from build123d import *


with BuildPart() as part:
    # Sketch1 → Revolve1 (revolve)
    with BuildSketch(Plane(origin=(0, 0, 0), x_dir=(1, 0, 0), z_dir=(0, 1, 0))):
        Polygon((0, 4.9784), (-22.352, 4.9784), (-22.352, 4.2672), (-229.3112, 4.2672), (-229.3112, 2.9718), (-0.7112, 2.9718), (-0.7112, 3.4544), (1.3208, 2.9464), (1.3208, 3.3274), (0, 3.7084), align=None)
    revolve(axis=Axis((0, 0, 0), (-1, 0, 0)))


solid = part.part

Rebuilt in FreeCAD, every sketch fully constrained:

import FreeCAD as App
import Part
import Sketcher
Q = App.Units.Quantity


def add_polygon(sketch, points):
    """Adds a closed chain of lines whose ends are joined by coincident constraints."""
    first, n = sketch.GeometryCount, len(points)
    for a, b in zip(points, points[1:] + points[:1]):
        sketch.addGeometry(Part.LineSegment(App.Vector(*a, 0), App.Vector(*b, 0)), False)
    for i in range(n):
        sketch.addConstraint(Sketcher.Constraint("Coincident", first + i, 2, first + (i + 1) % n, 1))

doc = App.newDocument("Part")
body = doc.addObject("PartDesign::Body", "Body")

# Sketch on XZ plane
sketch1 = body.newObject("Sketcher::SketchObject", "Sketch")
sketch1.AttachmentSupport = (doc.getObject("XZ_Plane"), [""])
sketch1.MapMode = "FlatFace"
add_polygon(sketch1, [(0, -4.98), (-22.35, -4.98), (-22.35, -4.27), (-229.31, -4.27), (-229.31, -2.97), (-0.71, -2.97), (-0.71, -3.45), (1.32, -2.95), (1.32, -3.33), (0, -3.71)])  # lines 0-9
sketch1.addConstraint(Sketcher.Constraint("Horizontal", 0))
sketch1.addConstraint(Sketcher.Constraint("Vertical", 1))
sketch1.addConstraint(Sketcher.Constraint("Horizontal", 2))
sketch1.addConstraint(Sketcher.Constraint("Vertical", 3))
sketch1.addConstraint(Sketcher.Constraint("Horizontal", 4))
sketch1.addConstraint(Sketcher.Constraint("Vertical", 5))
sketch1.addConstraint(Sketcher.Constraint("Vertical", 7))
sketch1.addConstraint(Sketcher.Constraint("Vertical", 9))
sketch1.addConstraint(Sketcher.Constraint("PointOnObject", 8, 2, -2))
sketch1.addConstraint(Sketcher.Constraint("DistanceX", 4, 1, 4, 2, Q("9 in")))
sketch1.addConstraint(Sketcher.Constraint("DistanceX", 0, 2, 0, 1, Q("0.88 in")))
sketch1.addConstraint(Sketcher.Constraint("DistanceY", 9, 2, 9, 1, Q("0.05 in")))
sketch1.addConstraint(Sketcher.Constraint("DistanceX", 2, 2, 2, 1, Q("8.148 in")))
sketch1.addConstraint(Sketcher.Constraint("DistanceY", 1, 1, 1, 2, Q("0.028 in")))
sketch1.addConstraint(Sketcher.Constraint("DistanceY", 3, 1, 3, 2, Q("0.051 in")))
sketch1.addConstraint(Sketcher.Constraint("DistanceY", 5, 2, 5, 1, Q("0.019 in")))
sketch1.addConstraint(Sketcher.Constraint("DistanceY", 7, 2, 7, 1, Q("0.015 in")))
sketch1.addConstraint(Sketcher.Constraint("DistanceX", 4, 2, 6, 2, Q("0.08 in")))
sketch1.addConstraint(Sketcher.Constraint("DistanceY", 5, 2, 6, 2, Q("0.02 in")))
sketch1.addConstraint(Sketcher.Constraint("DistanceY", 0, 2, -1, 1, Q("0.196 in")))
revolution = body.newObject("PartDesign::Revolution", "Revolution")
revolution.Profile = sketch1
revolution.ReferenceAxis = (sketch1, ["H_Axis"])
revolution.Angle = 360

doc.recompute()
